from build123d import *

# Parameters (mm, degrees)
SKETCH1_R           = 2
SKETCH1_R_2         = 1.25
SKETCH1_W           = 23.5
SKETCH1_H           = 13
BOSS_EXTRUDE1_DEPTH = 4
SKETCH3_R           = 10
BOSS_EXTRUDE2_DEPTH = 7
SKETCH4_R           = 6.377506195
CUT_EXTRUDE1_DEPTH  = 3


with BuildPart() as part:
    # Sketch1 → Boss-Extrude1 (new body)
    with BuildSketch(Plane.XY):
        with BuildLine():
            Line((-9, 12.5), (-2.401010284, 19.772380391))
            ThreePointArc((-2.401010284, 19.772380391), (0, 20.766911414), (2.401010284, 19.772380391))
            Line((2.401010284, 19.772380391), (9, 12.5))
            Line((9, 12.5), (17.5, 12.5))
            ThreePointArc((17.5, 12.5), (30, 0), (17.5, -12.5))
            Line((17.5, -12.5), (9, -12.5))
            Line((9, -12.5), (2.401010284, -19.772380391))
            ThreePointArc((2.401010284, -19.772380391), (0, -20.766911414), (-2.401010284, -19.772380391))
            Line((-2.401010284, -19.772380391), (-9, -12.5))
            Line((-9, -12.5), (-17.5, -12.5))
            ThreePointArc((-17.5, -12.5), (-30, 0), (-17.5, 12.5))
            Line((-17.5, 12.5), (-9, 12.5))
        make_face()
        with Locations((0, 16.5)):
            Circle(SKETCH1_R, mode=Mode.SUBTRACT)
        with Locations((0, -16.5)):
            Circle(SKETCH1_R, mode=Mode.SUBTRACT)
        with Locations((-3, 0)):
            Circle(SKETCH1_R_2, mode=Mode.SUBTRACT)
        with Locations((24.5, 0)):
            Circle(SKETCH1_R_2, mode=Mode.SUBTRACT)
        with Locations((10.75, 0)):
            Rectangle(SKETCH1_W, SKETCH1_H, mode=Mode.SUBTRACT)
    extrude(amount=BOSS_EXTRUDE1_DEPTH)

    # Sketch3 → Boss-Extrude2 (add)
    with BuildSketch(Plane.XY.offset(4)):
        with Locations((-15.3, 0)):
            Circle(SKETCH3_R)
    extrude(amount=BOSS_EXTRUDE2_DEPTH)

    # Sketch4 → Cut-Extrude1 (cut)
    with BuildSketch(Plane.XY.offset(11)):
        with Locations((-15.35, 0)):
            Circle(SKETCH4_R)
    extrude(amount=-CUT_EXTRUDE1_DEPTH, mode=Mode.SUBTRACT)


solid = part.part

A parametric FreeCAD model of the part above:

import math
import FreeCAD as App
import Part
import Sketcher
from FreeCAD import Vector
Q = App.Units.Quantity

doc = App.newDocument("Part")
body = doc.addObject("PartDesign::Body", "Body")

sketch1 = body.newObject("Sketcher::SketchObject", "Sketch")
sketch1.AttachmentSupport = (doc.getObject("XY_Plane"), [""])
sketch1.MapMode = "FlatFace"
sketch1.addGeometry(Part.LineSegment(Vector(-2.40101, 19.77238, 0), Vector(-9, 12.5, 0)), False)
sketch1.addGeometry(Part.LineSegment(Vector(-9, 12.5, 0), Vector(-17.5, 12.5, 0)), False)
sketch1.addGeometry(Part.ArcOfCircle(Part.Circle(Vector(-17.5, 0, 0), Vector(0, 0, 1), 12.5), math.radians(90), math.radians(270)), False)
sketch1.addGeometry(Part.LineSegment(Vector(-17.5, -12.5, 0), Vector(-9, -12.5, 0)), False)
sketch1.addGeometry(Part.LineSegment(Vector(-9, -12.5, 0), Vector(-2.40101, -19.77238, 0)), False)
sketch1.addGeometry(Part.ArcOfCircle(Part.Circle(Vector(0, -17.37137, 0), Vector(0, 0, 1), 3.395541), math.radians(-135), math.radians(-45)), False)
sketch1.addGeometry(Part.LineSegment(Vector(2.40101, -19.77238, 0), Vector(9, -12.5, 0)), False)
sketch1.addGeometry(Part.LineSegment(Vector(9, -12.5, 0), Vector(17.5, -12.5, 0)), False)
sketch1.addGeometry(Part.ArcOfCircle(Part.Circle(Vector(17.5, 0, 0), Vector(0, 0, 1), 12.5), math.radians(-90), math.radians(90)), False)
sketch1.addGeometry(Part.LineSegment(Vector(17.5, 12.5, 0), Vector(9, 12.5, 0)), False)
sketch1.addGeometry(Part.LineSegment(Vector(9, 12.5, 0), Vector(2.40101, 19.77238, 0)), False)
sketch1.addGeometry(Part.ArcOfCircle(Part.Circle(Vector(0, 17.37137, 0), Vector(0, 0, 1), 3.395541), math.radians(45), math.radians(135)), False)
sketch1.addGeometry(Part.Circle(Vector(0, -16.5, 0), Vector(0, 0, 1), 2), False)
sketch1.addGeometry(Part.Circle(Vector(24.5, 0, 0), Vector(0, 0, 1), 1.25), False)
sketch1.addGeometry(Part.LineSegment(Vector(-1, -6.5, 0), Vector(-1, 6.5, 0)), False)
sketch1.addGeometry(Part.LineSegment(Vector(-1, 6.5, 0), Vector(22.5, 6.5, 0)), False)
sketch1.addGeometry(Part.LineSegment(Vector(22.5, 6.5, 0), Vector(22.5, -6.5, 0)), False)
sketch1.addGeometry(Part.LineSegment(Vector(22.5, -6.5, 0), Vector(-1, -6.5, 0)), False)
sketch1.addGeometry(Part.Circle(Vector(-3, 0, 0), Vector(0, 0, 1), 1.25), False)
sketch1.addGeometry(Part.Circle(Vector(0, 16.5, 0), Vector(0, 0, 1), 2), False)
sketch1.addConstraint(Sketcher.Constraint("Coincident", 0, 2, 1, 1))
sketch1.addConstraint(Sketcher.Constraint("Tangent", 1, 2, 2, 1))
sketch1.addConstraint(Sketcher.Constraint("Tangent", 2, 2, 3, 1))
sketch1.addConstraint(Sketcher.Constraint("Coincident", 3, 2, 4, 1))
sketch1.addConstraint(Sketcher.Constraint("Coincident", 4, 2, 5, 1))
sketch1.addConstraint(Sketcher.Constraint("Coincident", 5, 2, 6, 1))
sketch1.addConstraint(Sketcher.Constraint("Coincident", 6, 2, 7, 1))
sketch1.addConstraint(Sketcher.Constraint("Tangent", 7, 2, 8, 1))
sketch1.addConstraint(Sketcher.Constraint("Tangent", 8, 2, 9, 1))
sketch1.addConstraint(Sketcher.Constraint("Coincident", 9, 2, 10, 1))
sketch1.addConstraint(Sketcher.Constraint("Coincident", 10, 2, 11, 1))
sketch1.addConstraint(Sketcher.Constraint("Coincident", 11, 2, 0, 1))
sketch1.addConstraint(Sketcher.Constraint("Coincident", 14, 2, 15, 1))
sketch1.addConstraint(Sketcher.Constraint("Coincident", 15, 2, 16, 1))
sketch1.addConstraint(Sketcher.Constraint("Coincident", 16, 2, 17, 1))
sketch1.addConstraint(Sketcher.Constraint("Coincident", 17, 2, 14, 1))
sketch1.addConstraint(Sketcher.Constraint("Horizontal", 1))
sketch1.addConstraint(Sketcher.Constraint("Horizontal", 3))
sketch1.addConstraint(Sketcher.Constraint("Horizontal", 7))
sketch1.addConstraint(Sketcher.Constraint("Horizontal", 9))
sketch1.addConstraint(Sketcher.Constraint("Vertical", 14))
sketch1.addConstraint(Sketcher.Constraint("Horizontal", 15))
sketch1.addConstraint(Sketcher.Constraint("Vertical", 16))
sketch1.addConstraint(Sketcher.Constraint("Horizontal", 17))
sketch1.addConstraint(Sketcher.Constraint("Equal", 2, 8))
sketch1.addConstraint(Sketcher.Constraint("Equal", 5, 11))
sketch1.addConstraint(Sketcher.Constraint("Equal", 13, 18))
sketch1.addConstraint(Sketcher.Constraint("Equal", 12, 19))
sketch1.addConstraint(Sketcher.Constraint("Symmetric", 2, 3, 8, 3, -1, 1))
sketch1.addConstraint(Sketcher.Constraint("Symmetric", 5, 3, 11, 3, -1, 1))
sketch1.addConstraint(Sketcher.Constraint("Symmetric", 12, 3, 19, 3, -1, 1))
sketch1.addConstraint(Sketcher.Constraint("Symmetric", 4, 2, 5, 2, -2))
sketch1.addConstraint(Sketcher.Constraint("Symmetric", 3, 2, 6, 2, -2))
sketch1.addConstraint(Sketcher.Constraint("PointOnObject", 12, 3, -2))
sketch1.addConstraint(Sketcher.Constraint("PointOnObject", 13, 3, -1))
sketch1.addConstraint(Sketcher.Constraint("PointOnObject", 18, 3, -1))
sketch1.addConstraint(Sketcher.Constraint("Parallel", 0, 6))
sketch1.addConstraint(Sketcher.Constraint("Parallel", 4, 10))
sketch1.addConstraint(Sketcher.Constraint("Horizontal", 10, 2, 11, 2))
sketch1.addConstraint(Sketcher.Constraint("Vertical", 0, 2, 3, 2))
sketch1.addConstraint(Sketcher.Constraint("Diameter", 12, Q("4 mm")))
sketch1.addConstraint(Sketcher.Constraint("Diameter", 13, Q("2.5 mm")))
sketch1.addConstraint(Sketcher.Constraint("Radius", 2, Q("12.5 mm")))
sketch1.addConstraint(Sketcher.Constraint("DistanceY", 14, 1, 14, 2, Q("13 mm")))
sketch1.addConstraint(Sketcher.Constraint("DistanceX", 1, 2, 1, 1, Q("8.5 mm")))
sketch1.addConstraint(Sketcher.Constraint("DistanceX", 15, 1, 15, 2, Q("23.5 mm")))
sketch1.addConstraint(Sketcher.Constraint("DistanceX", 18, 3, -1, 1, Q("3 mm")))
sketch1.addConstraint(Sketcher.Constraint("DistanceX", 0, 2, -1, 1, Q("9 mm")))
sketch1.addConstraint(Sketcher.Constraint("DistanceX", 14, 2, -1, 1, Q("1 mm")))
sketch1.addConstraint(Sketcher.Constraint("DistanceX", 8, 3, 13, 3, Q("7 mm")))
sketch1.addConstraint(Sketcher.Constraint("DistanceY", 0, 2, 19, 3, Q("4 mm")))
sketch1.addConstraint(Sketcher.Constraint("DistanceY", 14, 2, 0, 2, Q("6 mm")))
sketch1.addConstraint(Sketcher.Constraint("Radius", 5, Q("3.395541 mm")))
sketch1.addConstraint(Sketcher.Constraint("Distance", 0, Q("9.820091 mm")))
sketch1.addConstraint(Sketcher.Constraint("DistanceY", 5, 3, -1, 1, Q("17.37137 mm")))
pad1 = body.newObject("PartDesign::Pad", "Pad")
pad1.Profile = sketch1
pad1.Length = 4

sketch2 = body.newObject("Sketcher::SketchObject", "Sketch001")
sketch2.AttachmentSupport = (doc.getObject("XY_Plane"), [""])
sketch2.MapMode = "FlatFace"
sketch2.AttachmentOffset = App.Placement(Vector(0, 0, 4), App.Rotation())
sketch2.addGeometry(Part.Circle(Vector(-15.3, 0, 0), Vector(0, 0, 1), 10), False)
sketch2.addConstraint(Sketcher.Constraint("PointOnObject", 0, 3, -1))
sketch2.addConstraint(Sketcher.Constraint("Diameter", 0, Q("20 mm")))
sketch2.addConstraint(Sketcher.Constraint("DistanceX", 0, 3, -1, 1, Q("15.3 mm")))
pad2 = body.newObject("PartDesign::Pad", "Pad001")
pad2.Profile = sketch2
pad2.Length = 7

sketch3 = body.newObject("Sketcher::SketchObject", "Sketch002")
sketch3.AttachmentSupport = (doc.getObject("XY_Plane"), [""])
sketch3.MapMode = "FlatFace"
sketch3.AttachmentOffset = App.Placement(Vector(0, 0, 11), App.Rotation())
sketch3.addGeometry(Part.Circle(Vector(-15.35, 0, 0), Vector(0, 0, 1), 6.377506), False)
sketch3.addConstraint(Sketcher.Constraint("PointOnObject", 0, 3, -1))
sketch3.addConstraint(Sketcher.Constraint("DistanceX", 0, 3, -1, 1, Q("15.35 mm")))
sketch3.addConstraint(Sketcher.Constraint("Diameter", 0, Q("12.755012 mm")))
pocket1 = body.newObject("PartDesign::Pocket", "Pocket")
pocket1.Profile = sketch3
pocket1.Length = 3

doc.recompute()
